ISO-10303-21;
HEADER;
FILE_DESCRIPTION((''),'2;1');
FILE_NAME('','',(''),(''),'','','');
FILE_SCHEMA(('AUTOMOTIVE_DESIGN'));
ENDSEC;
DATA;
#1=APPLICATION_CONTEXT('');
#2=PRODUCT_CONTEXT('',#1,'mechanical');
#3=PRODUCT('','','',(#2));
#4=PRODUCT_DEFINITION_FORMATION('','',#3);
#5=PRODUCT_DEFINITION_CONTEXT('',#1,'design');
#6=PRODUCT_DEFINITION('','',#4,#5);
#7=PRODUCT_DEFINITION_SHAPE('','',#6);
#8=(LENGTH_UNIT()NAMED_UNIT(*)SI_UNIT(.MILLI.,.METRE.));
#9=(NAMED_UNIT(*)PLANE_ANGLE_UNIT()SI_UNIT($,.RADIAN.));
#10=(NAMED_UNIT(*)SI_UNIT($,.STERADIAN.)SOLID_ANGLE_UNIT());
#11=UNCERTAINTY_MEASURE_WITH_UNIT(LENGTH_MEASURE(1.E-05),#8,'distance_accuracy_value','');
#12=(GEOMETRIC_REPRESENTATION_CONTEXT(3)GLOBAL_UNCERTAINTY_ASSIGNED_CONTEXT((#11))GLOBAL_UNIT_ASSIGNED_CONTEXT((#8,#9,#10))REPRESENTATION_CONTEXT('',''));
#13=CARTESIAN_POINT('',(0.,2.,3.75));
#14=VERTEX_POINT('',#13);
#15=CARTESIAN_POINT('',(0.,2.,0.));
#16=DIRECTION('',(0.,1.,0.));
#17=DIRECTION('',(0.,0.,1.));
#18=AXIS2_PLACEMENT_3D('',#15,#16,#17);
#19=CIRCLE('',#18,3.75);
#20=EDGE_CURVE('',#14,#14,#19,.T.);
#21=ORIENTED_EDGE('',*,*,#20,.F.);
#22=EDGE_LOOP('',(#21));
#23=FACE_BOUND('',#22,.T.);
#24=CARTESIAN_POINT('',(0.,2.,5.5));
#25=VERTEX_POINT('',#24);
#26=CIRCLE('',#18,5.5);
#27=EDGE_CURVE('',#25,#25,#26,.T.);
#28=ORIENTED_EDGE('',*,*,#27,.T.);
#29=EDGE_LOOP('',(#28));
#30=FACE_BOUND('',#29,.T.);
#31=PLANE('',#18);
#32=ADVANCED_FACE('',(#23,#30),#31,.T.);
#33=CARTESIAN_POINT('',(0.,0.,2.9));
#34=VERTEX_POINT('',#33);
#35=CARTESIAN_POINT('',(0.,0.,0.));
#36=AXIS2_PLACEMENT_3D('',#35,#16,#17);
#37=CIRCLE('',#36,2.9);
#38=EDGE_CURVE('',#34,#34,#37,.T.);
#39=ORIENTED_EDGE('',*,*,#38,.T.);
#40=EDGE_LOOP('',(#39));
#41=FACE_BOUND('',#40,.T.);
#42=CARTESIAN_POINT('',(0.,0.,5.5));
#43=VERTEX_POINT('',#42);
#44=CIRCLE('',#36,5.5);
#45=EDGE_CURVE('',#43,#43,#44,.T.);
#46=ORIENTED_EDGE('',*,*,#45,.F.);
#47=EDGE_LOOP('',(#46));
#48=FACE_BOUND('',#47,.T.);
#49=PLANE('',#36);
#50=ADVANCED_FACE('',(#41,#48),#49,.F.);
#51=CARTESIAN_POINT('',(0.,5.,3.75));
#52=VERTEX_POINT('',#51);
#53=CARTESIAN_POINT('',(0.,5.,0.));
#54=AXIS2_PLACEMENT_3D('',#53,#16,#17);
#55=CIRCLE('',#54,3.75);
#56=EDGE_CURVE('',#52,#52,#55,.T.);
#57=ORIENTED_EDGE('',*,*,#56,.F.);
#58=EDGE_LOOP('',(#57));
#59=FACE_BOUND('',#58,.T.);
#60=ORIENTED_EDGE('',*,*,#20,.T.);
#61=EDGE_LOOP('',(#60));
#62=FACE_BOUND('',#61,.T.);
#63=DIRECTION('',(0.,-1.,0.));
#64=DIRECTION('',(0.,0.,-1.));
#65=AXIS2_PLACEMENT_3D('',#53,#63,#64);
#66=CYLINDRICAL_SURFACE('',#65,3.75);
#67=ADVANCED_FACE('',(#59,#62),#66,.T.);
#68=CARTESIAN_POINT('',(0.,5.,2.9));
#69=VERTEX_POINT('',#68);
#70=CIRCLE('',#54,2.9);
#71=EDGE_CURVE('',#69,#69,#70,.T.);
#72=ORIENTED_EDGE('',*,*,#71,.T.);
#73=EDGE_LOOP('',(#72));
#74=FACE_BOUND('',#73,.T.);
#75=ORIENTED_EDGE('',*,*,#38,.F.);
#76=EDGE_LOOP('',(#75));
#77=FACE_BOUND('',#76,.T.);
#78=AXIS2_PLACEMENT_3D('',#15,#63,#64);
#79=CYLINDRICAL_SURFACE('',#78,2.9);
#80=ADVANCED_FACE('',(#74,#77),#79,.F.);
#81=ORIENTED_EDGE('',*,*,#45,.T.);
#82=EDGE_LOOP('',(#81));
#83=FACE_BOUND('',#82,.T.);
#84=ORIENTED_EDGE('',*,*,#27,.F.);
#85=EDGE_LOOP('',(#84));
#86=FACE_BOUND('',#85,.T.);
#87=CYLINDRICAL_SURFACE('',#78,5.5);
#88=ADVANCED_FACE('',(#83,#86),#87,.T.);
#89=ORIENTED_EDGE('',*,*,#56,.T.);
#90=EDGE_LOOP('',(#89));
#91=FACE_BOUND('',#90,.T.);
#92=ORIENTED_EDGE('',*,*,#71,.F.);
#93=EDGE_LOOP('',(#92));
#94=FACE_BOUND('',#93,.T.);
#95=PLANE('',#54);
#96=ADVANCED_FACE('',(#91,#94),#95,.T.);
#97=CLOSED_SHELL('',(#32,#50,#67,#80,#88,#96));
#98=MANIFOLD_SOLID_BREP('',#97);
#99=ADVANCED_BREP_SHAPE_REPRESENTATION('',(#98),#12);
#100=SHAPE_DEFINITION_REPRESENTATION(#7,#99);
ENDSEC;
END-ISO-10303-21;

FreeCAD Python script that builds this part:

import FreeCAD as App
import Part
import Sketcher
from FreeCAD import Vector

doc = App.newDocument("Part")
params = doc.addObject("Spreadsheet::Sheet", "Params")
for row, (alias, value) in enumerate([
    ("sketch1_diameter", "11 mm"),
    ("sketch1_diameter2", "5.8 mm"),
    ("pad1_length", "2 mm"),
    ("sketch2_diameter", "7.5 mm"),
    ("sketch2_diameter2", "5.8 mm"),
    ("pad2_length", "3 mm"),
], start=1):
    params.set(f"A{row}", alias)
    params.set(f"B{row}", "=" + value)
    params.setAlias(f"B{row}", alias)

body = doc.addObject("PartDesign::Body", "Body")

sketch1 = doc.addObject("Sketcher::SketchObject", "Sketch")
body.addObject(sketch1)
sketch1.AttachmentSupport = (doc.XZ_Plane, [""])
sketch1.MapMode = "FlatFace"
sketch1.addGeometry(Part.Circle(Vector(0, 0, 0), Vector(0, 0, 1), 5.5), False)
sketch1.addGeometry(Part.Circle(Vector(0, 0, 0), Vector(0, 0, 1), 2.9), False)
sketch1.addConstraint(Sketcher.Constraint("Coincident", 0, 3, -1, 1))
sketch1.addConstraint(Sketcher.Constraint("Coincident", 1, 3, -1, 1))
sketch1.addConstraint(Sketcher.Constraint("Diameter", 0, 11.0))
sketch1.addConstraint(Sketcher.Constraint("Diameter", 1, 5.8))
sketch1.setExpression("Constraints[2]", "Params.sketch1_diameter")
sketch1.setExpression("Constraints[3]", "Params.sketch1_diameter2")
pad1 = doc.addObject("PartDesign::Pad", "Pad")
body.addObject(pad1)
pad1.Profile = sketch1
pad1.setExpression("Length", "Params.pad1_length")
pad1.Reversed = True

sketch2 = doc.addObject("Sketcher::SketchObject", "Sketch001")
body.addObject(sketch2)
sketch2.AttachmentSupport = (doc.XZ_Plane, [""])
sketch2.MapMode = "FlatFace"
sketch2.AttachmentOffset = App.Placement(Vector(0, 0, -2), App.Rotation())
sketch2.addGeometry(Part.Circle(Vector(0, 0, 0), Vector(0, 0, 1), 3.8), False)
sketch2.addGeometry(Part.Circle(Vector(0, 0, 0), Vector(0, 0, 1), 2.9), False)
sketch2.addConstraint(Sketcher.Constraint("Coincident", 0, 3, -1, 1))
sketch2.addConstraint(Sketcher.Constraint("Coincident", 1, 3, -1, 1))
sketch2.addConstraint(Sketcher.Constraint("Diameter", 0, 7.5))
sketch2.addConstraint(Sketcher.Constraint("Diameter", 1, 5.8))
sketch2.setExpression("Constraints[2]", "Params.sketch2_diameter")
sketch2.setExpression("Constraints[3]", "Params.sketch2_diameter2")
pad2 = doc.addObject("PartDesign::Pad", "Pad001")
body.addObject(pad2)
pad2.Profile = sketch2
pad2.setExpression("Length", "Params.pad2_length")
pad2.Reversed = True

doc.recompute()
